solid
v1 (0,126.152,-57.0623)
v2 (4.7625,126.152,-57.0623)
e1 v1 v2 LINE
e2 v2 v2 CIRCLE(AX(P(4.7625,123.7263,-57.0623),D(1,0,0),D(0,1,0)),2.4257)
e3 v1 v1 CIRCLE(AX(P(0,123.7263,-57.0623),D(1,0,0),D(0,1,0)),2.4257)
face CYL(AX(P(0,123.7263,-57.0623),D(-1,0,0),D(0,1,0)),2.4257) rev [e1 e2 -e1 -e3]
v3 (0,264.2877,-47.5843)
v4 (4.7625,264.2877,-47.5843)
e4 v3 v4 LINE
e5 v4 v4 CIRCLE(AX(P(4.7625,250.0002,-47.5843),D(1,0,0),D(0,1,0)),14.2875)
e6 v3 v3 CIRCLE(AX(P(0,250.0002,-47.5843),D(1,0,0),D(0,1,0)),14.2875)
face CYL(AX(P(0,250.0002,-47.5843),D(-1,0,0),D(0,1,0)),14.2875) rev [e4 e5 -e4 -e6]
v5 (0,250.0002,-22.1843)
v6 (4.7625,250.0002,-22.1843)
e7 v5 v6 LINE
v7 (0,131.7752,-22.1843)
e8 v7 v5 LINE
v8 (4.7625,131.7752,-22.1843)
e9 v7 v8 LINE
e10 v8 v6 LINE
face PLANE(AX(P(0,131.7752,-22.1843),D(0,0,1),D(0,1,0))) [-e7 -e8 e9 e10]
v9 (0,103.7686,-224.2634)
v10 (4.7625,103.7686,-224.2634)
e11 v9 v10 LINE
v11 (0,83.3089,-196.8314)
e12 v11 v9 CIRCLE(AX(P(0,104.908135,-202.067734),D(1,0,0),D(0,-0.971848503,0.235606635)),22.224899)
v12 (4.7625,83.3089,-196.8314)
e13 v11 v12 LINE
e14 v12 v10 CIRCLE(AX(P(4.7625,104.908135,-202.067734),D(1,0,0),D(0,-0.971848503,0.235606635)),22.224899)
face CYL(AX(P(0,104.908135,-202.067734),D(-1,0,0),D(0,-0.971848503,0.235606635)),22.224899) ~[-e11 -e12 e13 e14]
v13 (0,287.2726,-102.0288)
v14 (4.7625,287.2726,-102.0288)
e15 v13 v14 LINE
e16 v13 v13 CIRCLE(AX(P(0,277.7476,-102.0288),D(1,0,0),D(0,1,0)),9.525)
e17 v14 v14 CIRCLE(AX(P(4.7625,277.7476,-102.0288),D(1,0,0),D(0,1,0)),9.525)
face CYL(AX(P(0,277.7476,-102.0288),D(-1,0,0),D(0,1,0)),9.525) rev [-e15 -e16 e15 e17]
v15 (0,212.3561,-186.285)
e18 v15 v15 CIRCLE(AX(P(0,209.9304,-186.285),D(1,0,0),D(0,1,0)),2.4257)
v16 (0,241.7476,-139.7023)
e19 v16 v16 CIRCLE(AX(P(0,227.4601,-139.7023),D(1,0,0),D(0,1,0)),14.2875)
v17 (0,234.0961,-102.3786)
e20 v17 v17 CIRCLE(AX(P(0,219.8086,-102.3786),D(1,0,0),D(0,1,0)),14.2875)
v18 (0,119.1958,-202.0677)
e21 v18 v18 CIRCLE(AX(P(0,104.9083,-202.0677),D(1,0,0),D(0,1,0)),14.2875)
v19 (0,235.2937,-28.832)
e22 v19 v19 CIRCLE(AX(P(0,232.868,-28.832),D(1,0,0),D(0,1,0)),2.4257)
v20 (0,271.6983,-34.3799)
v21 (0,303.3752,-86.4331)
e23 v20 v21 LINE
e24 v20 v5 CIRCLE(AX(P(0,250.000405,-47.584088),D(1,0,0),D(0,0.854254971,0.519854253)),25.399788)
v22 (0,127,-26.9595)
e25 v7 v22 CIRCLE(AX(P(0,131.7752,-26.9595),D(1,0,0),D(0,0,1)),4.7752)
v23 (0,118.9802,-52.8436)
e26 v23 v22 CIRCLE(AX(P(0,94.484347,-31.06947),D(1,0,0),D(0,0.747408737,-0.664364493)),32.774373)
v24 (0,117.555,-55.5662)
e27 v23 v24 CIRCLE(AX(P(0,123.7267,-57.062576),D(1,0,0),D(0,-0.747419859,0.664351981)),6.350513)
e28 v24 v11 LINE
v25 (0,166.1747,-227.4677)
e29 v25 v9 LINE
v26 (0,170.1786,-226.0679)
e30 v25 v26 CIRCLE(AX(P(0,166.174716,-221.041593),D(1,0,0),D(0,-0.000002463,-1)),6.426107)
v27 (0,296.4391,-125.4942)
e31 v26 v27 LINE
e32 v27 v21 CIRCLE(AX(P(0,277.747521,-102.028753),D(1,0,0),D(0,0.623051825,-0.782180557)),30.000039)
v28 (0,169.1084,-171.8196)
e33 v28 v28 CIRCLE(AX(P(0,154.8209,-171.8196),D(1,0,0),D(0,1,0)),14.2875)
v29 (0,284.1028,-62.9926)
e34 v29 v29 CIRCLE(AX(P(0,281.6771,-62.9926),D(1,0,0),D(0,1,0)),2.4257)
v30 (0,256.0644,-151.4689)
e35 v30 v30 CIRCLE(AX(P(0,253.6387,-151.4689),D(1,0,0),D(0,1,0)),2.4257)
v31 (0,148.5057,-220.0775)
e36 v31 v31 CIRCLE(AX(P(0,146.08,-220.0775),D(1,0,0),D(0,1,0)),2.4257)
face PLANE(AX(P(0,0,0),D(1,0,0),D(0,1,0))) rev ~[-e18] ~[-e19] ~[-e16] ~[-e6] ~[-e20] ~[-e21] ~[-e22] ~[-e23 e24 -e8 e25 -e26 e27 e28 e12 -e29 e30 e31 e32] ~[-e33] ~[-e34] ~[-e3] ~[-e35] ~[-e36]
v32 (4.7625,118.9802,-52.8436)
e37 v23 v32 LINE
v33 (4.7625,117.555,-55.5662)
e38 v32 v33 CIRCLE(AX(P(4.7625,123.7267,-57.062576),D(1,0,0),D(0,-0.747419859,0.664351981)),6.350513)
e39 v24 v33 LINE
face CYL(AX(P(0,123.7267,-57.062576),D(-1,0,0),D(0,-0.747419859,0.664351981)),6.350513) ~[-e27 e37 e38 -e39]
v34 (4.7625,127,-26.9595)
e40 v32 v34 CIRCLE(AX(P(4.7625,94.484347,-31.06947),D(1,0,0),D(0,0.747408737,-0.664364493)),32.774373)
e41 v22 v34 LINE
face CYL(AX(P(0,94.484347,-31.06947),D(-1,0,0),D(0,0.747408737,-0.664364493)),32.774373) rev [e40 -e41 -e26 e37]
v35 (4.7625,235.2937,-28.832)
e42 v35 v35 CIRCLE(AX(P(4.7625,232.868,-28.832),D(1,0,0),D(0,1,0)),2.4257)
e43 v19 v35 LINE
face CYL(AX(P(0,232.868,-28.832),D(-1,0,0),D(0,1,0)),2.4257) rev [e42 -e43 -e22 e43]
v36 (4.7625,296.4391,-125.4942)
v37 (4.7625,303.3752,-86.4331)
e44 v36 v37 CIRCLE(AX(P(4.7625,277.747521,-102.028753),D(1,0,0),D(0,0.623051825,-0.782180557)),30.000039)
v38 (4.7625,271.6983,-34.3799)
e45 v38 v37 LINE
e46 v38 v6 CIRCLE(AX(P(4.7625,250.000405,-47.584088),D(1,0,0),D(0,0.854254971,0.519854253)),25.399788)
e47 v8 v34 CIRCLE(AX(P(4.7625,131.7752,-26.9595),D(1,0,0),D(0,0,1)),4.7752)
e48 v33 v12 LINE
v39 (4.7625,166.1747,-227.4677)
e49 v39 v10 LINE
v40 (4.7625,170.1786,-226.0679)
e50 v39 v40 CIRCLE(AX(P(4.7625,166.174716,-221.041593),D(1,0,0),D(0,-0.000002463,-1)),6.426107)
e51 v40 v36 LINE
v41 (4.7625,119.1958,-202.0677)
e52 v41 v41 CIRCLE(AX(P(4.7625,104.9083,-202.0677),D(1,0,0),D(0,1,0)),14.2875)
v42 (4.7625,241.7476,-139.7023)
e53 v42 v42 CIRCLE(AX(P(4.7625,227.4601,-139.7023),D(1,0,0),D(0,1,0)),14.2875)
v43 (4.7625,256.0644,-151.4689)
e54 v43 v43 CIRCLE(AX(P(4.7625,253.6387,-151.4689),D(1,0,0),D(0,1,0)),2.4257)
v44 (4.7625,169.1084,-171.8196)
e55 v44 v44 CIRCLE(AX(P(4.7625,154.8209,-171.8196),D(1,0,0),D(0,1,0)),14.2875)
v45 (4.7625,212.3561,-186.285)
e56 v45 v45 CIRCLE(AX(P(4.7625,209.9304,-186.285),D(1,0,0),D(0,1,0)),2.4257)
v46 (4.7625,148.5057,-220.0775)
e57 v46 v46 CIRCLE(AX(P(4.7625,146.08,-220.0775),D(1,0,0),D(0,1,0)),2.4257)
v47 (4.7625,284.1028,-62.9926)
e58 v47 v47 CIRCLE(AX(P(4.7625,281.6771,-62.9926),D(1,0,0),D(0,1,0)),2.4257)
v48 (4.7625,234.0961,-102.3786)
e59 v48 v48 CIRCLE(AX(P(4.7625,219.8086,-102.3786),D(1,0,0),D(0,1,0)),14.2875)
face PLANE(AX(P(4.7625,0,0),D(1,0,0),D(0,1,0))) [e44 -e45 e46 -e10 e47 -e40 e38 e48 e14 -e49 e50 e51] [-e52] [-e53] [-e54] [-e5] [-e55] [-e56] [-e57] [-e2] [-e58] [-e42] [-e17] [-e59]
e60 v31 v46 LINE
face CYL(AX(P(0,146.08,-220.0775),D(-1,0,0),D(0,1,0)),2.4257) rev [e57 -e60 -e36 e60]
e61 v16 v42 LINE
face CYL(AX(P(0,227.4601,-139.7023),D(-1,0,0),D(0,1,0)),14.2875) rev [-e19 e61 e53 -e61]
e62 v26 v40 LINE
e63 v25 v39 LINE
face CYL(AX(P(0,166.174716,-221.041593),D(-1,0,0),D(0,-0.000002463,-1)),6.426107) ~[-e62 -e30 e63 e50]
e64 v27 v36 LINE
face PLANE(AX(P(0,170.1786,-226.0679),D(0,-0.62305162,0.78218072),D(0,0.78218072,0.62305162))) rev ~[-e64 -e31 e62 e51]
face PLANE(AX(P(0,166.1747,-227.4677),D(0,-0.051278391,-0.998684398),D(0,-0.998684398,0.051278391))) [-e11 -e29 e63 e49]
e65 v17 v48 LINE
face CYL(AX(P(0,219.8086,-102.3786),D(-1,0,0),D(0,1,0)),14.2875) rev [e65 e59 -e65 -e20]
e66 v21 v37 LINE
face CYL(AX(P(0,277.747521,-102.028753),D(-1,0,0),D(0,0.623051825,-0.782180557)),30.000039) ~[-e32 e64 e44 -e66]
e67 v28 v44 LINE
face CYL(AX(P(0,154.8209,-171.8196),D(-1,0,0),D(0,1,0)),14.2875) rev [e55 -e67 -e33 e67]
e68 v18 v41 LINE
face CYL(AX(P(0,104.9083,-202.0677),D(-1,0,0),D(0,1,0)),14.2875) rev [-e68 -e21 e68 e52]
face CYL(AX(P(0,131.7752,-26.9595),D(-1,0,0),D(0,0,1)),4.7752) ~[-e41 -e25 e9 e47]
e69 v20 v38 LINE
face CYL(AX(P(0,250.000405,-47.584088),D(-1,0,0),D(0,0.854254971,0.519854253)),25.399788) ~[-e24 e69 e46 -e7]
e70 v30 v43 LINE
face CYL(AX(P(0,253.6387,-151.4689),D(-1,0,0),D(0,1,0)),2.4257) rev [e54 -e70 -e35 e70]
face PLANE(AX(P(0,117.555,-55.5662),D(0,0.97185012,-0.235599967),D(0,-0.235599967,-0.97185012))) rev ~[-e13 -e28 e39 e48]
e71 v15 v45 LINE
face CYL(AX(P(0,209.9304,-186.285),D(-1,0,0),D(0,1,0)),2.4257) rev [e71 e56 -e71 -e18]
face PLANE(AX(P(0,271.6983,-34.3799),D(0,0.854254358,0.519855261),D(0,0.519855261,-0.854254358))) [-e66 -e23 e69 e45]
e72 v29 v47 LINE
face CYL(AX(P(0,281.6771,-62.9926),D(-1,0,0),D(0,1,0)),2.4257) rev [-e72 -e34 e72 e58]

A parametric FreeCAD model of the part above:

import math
import FreeCAD as App
import Part
import Sketcher
from FreeCAD import Vector
Q = App.Units.Quantity

doc = App.newDocument("Part")
body = doc.addObject("PartDesign::Body", "Body")

# Sketch on YZ plane
sketch1 = doc.addObject("Sketcher::SketchObject", "Sketch")
body.addObject(sketch1)
sketch1.AttachmentSupport = (doc.YZ_Plane, [""])
sketch1.MapMode = "FlatFace"
sketch1.addGeometry([
    Part.LineSegment(Vector(103.7686, -224.2634, 0), Vector(166.1747, -227.4677, 0)),  # 0
    Part.ArcOfCircle(Part.Circle(Vector(166.1747, -221.0415, 0), Vector(0, 0, 1), 6.4262), math.radians(-90), math.radians(-51.460081)),  # 1
    Part.LineSegment(Vector(170.1786, -226.0679, 0), Vector(296.4391, -125.4942, 0)),  # 2
    Part.ArcOfCircle(Part.Circle(Vector(277.7476, -102.0288, 0), Vector(0, 0, 1), 30), math.radians(-51.460723), math.radians(31.322643)),  # 3
    Part.LineSegment(Vector(303.3752, -86.4331, 0), Vector(271.6983, -34.3799, 0)),  # 4
    Part.ArcOfCircle(Part.Circle(Vector(250.0002, -47.5843, 0), Vector(0, 0, 1), 25.4), math.radians(31.322644), math.radians(90)),  # 5
    Part.LineSegment(Vector(250.0002, -22.1843, 0), Vector(131.7752, -22.1843, 0)),  # 6
    Part.ArcOfCircle(Part.Circle(Vector(131.7752, -26.9595, 0), Vector(0, 0, 1), 4.7752), math.radians(90), math.radians(180)),  # 7
    Part.ArcOfCircle(Part.Circle(Vector(94.4844, -31.0695, 0), Vector(0, 0, 1), 32.774314), math.radians(-41.633612), math.radians(7.204032)),  # 8
    Part.ArcOfCircle(Part.Circle(Vector(123.7263, -57.0623, 0), Vector(0, 0, 1), 6.350031), math.radians(138.366835), math.radians(166.372766)),  # 9
    Part.LineSegment(Vector(117.555, -55.5662, 0), Vector(83.3089, -196.8314, 0)),  # 10
    Part.ArcOfCircle(Part.Circle(Vector(104.9083, -202.0677, 0), Vector(0, 0, 1), 22.225), math.radians(166.3728), math.radians(267.06057)),  # 11
    Part.Circle(Vector(104.9083, -202.0677, 0), Vector(0, 0, 1), 14.2875),  # 12
    Part.Circle(Vector(146.08, -220.0775, 0), Vector(0, 0, 1), 2.4257),  # 13
    Part.Circle(Vector(154.8209, -171.8196, 0), Vector(0, 0, 1), 14.2875),  # 14
    Part.Circle(Vector(209.9304, -186.285, 0), Vector(0, 0, 1), 2.4257),  # 15
    Part.Circle(Vector(227.4601, -139.7023, 0), Vector(0, 0, 1), 14.2875),  # 16
    Part.Circle(Vector(253.6387, -151.4689, 0), Vector(0, 0, 1), 2.4257),  # 17
    Part.Circle(Vector(123.7263, -57.0623, 0), Vector(0, 0, 1), 2.4257),  # 18
    Part.Circle(Vector(219.8086, -102.3786, 0), Vector(0, 0, 1), 14.2875),  # 19
    Part.Circle(Vector(277.7476, -102.0288, 0), Vector(0, 0, 1), 9.525),  # 20
    Part.Circle(Vector(281.6771, -62.9926, 0), Vector(0, 0, 1), 2.4257),  # 21
    Part.Circle(Vector(250.0002, -47.5843, 0), Vector(0, 0, 1), 14.2875),  # 22
    Part.Circle(Vector(232.868, -28.832, 0), Vector(0, 0, 1), 2.4257),  # 23
], False)
sketch1.addConstraint([
    Sketcher.Constraint("Coincident", 0, 2, 1, 1),
    Sketcher.Constraint("Tangent", 1, 2, 2, 1),
    Sketcher.Constraint("Tangent", 2, 2, 3, 1),
    Sketcher.Constraint("Tangent", 3, 2, 4, 1),
    Sketcher.Constraint("Tangent", 4, 2, 5, 1),
    Sketcher.Constraint("Tangent", 5, 2, 6, 1),
    Sketcher.Constraint("Tangent", 6, 2, 7, 1),
    Sketcher.Constraint("Coincident", 7, 2, 8, 2),
    Sketcher.Constraint("Tangent", 8, 1, 9, 1),
    Sketcher.Constraint("Tangent", 9, 2, 10, 1),
    Sketcher.Constraint("Tangent", 10, 2, 11, 1),
    Sketcher.Constraint("Tangent", 11, 2, 0, 1),
    Sketcher.Constraint("Horizontal", 6),
    Sketcher.Constraint("Coincident", 12, 3, 11, 3),
    Sketcher.Constraint("Coincident", 18, 3, 9, 3),
    Sketcher.Constraint("Coincident", 20, 3, 3, 3),
    Sketcher.Constraint("Coincident", 22, 3, 5, 3),
    Sketcher.Constraint("Equal", 12, 14),
    Sketcher.Constraint("Equal", 13, 15),
    Sketcher.Constraint("Equal", 14, 16),
    Sketcher.Constraint("Equal", 15, 17),
    Sketcher.Constraint("Equal", 17, 18),
    Sketcher.Constraint("Equal", 16, 19),
    Sketcher.Constraint("Equal", 18, 21),
    Sketcher.Constraint("Equal", 19, 22),
    Sketcher.Constraint("Equal", 21, 23),
    Sketcher.Constraint("Vertical", 1, 3, 0, 2),
    Sketcher.Constraint("Radius", 5, Q("1 in")),
    Sketcher.Constraint("Diameter", 20, Q("0.75 in")),
    Sketcher.Constraint("Radius", 9, Q("0.25 in")),
    Sketcher.Constraint("Diameter", 12, Q("1.125 in")),
    Sketcher.Constraint("Diameter", 13, Q("0.191 in")),
    Sketcher.Constraint("DistanceX", -1, 1, 7, 2, Q("5 in")),
    Sketcher.Constraint("Radius", 7, Q("0.188 in")),
    Sketcher.Constraint("Radius", 11, Q("0.875 in")),
    Sketcher.Constraint("DistanceY", 0, 2, 11, 3, Q("1 in")),
    Sketcher.Constraint("Radius", 3, Q("1.1811 in")),
    Sketcher.Constraint("Radius", 1, Q("0.253 in")),
    Sketcher.Constraint("DistanceY", 7, 2, 6, 2, Q("0.188 in")),
    Sketcher.Constraint("DistanceY", 5, 2, -1, 1, Q("0.8734 in")),
    Sketcher.Constraint("DistanceX", -1, 1, 5, 3, Q("250.0002 mm")),
    Sketcher.Constraint("DistanceX", -1, 1, 23, 3, Q("232.868 mm")),
    Sketcher.Constraint("Angle", 0, Q("-2.9393 deg")),
    Sketcher.Constraint("Angle", 2, Q("38.5393 deg")),
    Sketcher.Constraint("Radius", 8, Q("32.7743 mm")),
    Sketcher.Constraint("DistanceX", 19, 3, 16, 3, Q("7.6515 mm")),
    Sketcher.Constraint("DistanceY", 16, 3, 19, 3, Q("37.3237 mm")),
    Sketcher.Constraint("DistanceX", 19, 3, 3, 3, Q("57.939 mm")),
    Sketcher.Constraint("DistanceY", 11, 2, 10, 2, Q("1.08 in")),
    Sketcher.Constraint("DistanceX", 14, 3, 1, 3, Q("0.447 in")),
    Sketcher.Constraint("DistanceY", 14, 3, 9, 3, Q("4.518 in")),
    Sketcher.Constraint("DistanceY", 3, 3, 3, 2, Q("0.614 in")),
    Sketcher.Constraint("DistanceX", -1, 1, 1, 3, Q("6.5423 in")),
    Sketcher.Constraint("DistanceY", 8, 3, -1, 1, Q("1.2232 in")),
    Sketcher.Constraint("DistanceY", 16, 3, -1, 1, Q("5.5001 in")),
    Sketcher.Constraint("DistanceY", 1, 2, -1, 1, Q("8.9003 in")),
    Sketcher.Constraint("DistanceY", 15, 3, 14, 3, Q("0.5695 in")),
    Sketcher.Constraint("DistanceX", 13, 3, 15, 3, Q("2.5138 in")),
    Sketcher.Constraint("DistanceX", 15, 3, 17, 3, Q("1.7208 in")),
    Sketcher.Constraint("DistanceY", 14, 3, 17, 3, Q("0.8012 in")),
    Sketcher.Constraint("DistanceX", 19, 3, 17, 3, Q("1.3319 in")),
    Sketcher.Constraint("DistanceX", 3, 3, 21, 3, Q("0.1547 in")),
    Sketcher.Constraint("DistanceY", 21, 3, 23, 3, Q("1.3449 in")),
    Sketcher.Constraint("DistanceY", 2, 2, 21, 3, Q("2.4607 in")),
    Sketcher.Constraint("DistanceY", 13, 3, 10, 2, Q("0.9152 in")),
])
pad1 = doc.addObject("PartDesign::Pad", "Pad")
body.addObject(pad1)
pad1.Profile = sketch1
pad1.Length = Q("0.1875 in")

doc.recompute()
